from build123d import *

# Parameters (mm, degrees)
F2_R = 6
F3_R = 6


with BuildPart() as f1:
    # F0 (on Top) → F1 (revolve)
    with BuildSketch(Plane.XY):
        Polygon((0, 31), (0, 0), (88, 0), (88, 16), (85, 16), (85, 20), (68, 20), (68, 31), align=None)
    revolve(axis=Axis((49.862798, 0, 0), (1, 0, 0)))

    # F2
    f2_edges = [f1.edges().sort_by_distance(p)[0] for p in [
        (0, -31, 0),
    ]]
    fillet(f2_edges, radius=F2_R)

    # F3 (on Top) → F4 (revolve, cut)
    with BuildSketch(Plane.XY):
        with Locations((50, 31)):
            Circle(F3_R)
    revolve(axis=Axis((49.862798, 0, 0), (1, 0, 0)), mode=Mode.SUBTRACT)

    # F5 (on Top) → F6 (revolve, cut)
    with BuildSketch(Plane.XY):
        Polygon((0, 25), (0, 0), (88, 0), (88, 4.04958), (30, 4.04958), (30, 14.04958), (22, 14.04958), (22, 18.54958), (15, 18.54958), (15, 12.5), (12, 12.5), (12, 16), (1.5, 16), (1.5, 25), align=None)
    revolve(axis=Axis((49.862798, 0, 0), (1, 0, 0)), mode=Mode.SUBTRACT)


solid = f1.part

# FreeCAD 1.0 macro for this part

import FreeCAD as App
import Part
import Sketcher


def edges_at(feature, points):
    """Names of the edges that pass closest to the given points."""
    edges = feature.Shape.Edges
    near = lambda p: min(range(len(edges)), key=lambda i: edges[i].distToShape(Part.Vertex(*p))[0])
    return sorted({f"Edge{near(p) + 1}" for p in points})


def add_polygon(sketch, points):
    """Adds a closed chain of lines whose ends are joined by coincident constraints."""
    first, n = sketch.GeometryCount, len(points)
    for a, b in zip(points, points[1:] + points[:1]):
        sketch.addGeometry(Part.LineSegment(App.Vector(*a, 0), App.Vector(*b, 0)), False)
    for i in range(n):
        sketch.addConstraint(Sketcher.Constraint("Coincident", first + i, 2, first + (i + 1) % n, 1))

doc = App.newDocument("Part")
body = doc.addObject("PartDesign::Body", "Body")

# Sketch on XY plane
sketch1 = body.newObject("Sketcher::SketchObject", "Sketch")
sketch1.AttachmentSupport = (doc.getObject("XY_Plane"), [""])
sketch1.MapMode = "FlatFace"
add_polygon(sketch1, [(0, 31), (0, 0), (88, 0), (88, 16), (85, 16), (85, 20), (68, 20), (68, 31)])  # lines 0-7
sketch1.addConstraint(Sketcher.Constraint("Vertical", 0))
sketch1.addConstraint(Sketcher.Constraint("Horizontal", 1))
sketch1.addConstraint(Sketcher.Constraint("Vertical", 2))
sketch1.addConstraint(Sketcher.Constraint("Horizontal", 3))
sketch1.addConstraint(Sketcher.Constraint("Vertical", 4))
sketch1.addConstraint(Sketcher.Constraint("Horizontal", 5))
sketch1.addConstraint(Sketcher.Constraint("Vertical", 6))
sketch1.addConstraint(Sketcher.Constraint("Horizontal", 7))
sketch1.addConstraint(Sketcher.Constraint("Coincident", 0, 2, -1, 1))
sketch1.addConstraint(Sketcher.Constraint("DistanceX", 1, 1, 1, 2, 88.0))
sketch1.addConstraint(Sketcher.Constraint("DistanceX", 3, 2, 3, 1, 3.0))
sketch1.addConstraint(Sketcher.Constraint("DistanceX", 5, 2, 5, 1, 17.0))
sketch1.addConstraint(Sketcher.Constraint("DistanceY", 0, 2, 0, 1, 31.0))
sketch1.addConstraint(Sketcher.Constraint("DistanceY", 2, 1, 2, 2, 16.0))
sketch1.addConstraint(Sketcher.Constraint("DistanceY", 4, 1, 4, 2, 4.0))
revolution = body.newObject("PartDesign::Revolution", "Revolution")
revolution.Profile = sketch1
revolution.ReferenceAxis = (sketch1, ["H_Axis"])
revolution.Angle = 360
doc.recompute()

fillet = body.newObject("PartDesign::Fillet", "Fillet")
fillet.Base = (revolution, edges_at(revolution, [(0, -31, 0)]))
fillet.Radius = 6

# Sketch on XY plane
sketch2 = body.newObject("Sketcher::SketchObject", "Sketch001")
sketch2.AttachmentSupport = (doc.getObject("XY_Plane"), [""])
sketch2.MapMode = "FlatFace"
sketch2.addGeometry(Part.Circle(App.Vector(50, 31, 0), App.Vector(0, 0, 1), 6), False)
sketch2.addConstraint(Sketcher.Constraint("Diameter", 0, 12.0))
sketch2.addConstraint(Sketcher.Constraint("DistanceX", -1, 1, 0, 3, 50.0))
sketch2.addConstraint(Sketcher.Constraint("DistanceY", -1, 1, 0, 3, 31.0))
groove = body.newObject("PartDesign::Groove", "Groove")
groove.Profile = sketch2
groove.ReferenceAxis = (sketch2, ["H_Axis"])
groove.Angle = 360

# Sketch on XY plane
sketch3 = body.newObject("Sketcher::SketchObject", "Sketch002")
sketch3.AttachmentSupport = (doc.getObject("XY_Plane"), [""])
sketch3.MapMode = "FlatFace"
add_polygon(sketch3, [(0, 25), (0, 0), (88, 0), (88, 4), (30, 4), (30, 14), (22, 14), (22, 18.5), (15, 18.5), (15, 12.5), (12, 12.5), (12, 16), (1.5, 16), (1.5, 25)])  # lines 0-13
sketch3.addConstraint(Sketcher.Constraint("Vertical", 0))
sketch3.addConstraint(Sketcher.Constraint("Horizontal", 1))
sketch3.addConstraint(Sketcher.Constraint("Vertical", 2))
sketch3.addConstraint(Sketcher.Constraint("Horizontal", 3))
sketch3.addConstraint(Sketcher.Constraint("Vertical", 4))
sketch3.addConstraint(Sketcher.Constraint("Horizontal", 5))
sketch3.addConstraint(Sketcher.Constraint("Vertical", 6))
sketch3.addConstraint(Sketcher.Constraint("Horizontal", 7))
sketch3.addConstraint(Sketcher.Constraint("Vertical", 8))
sketch3.addConstraint(Sketcher.Constraint("Horizontal", 9))
sketch3.addConstraint(Sketcher.Constraint("Vertical", 10))
sketch3.addConstraint(Sketcher.Constraint("Horizontal", 11))
sketch3.addConstraint(Sketcher.Constraint("Vertical", 12))
sketch3.addConstraint(Sketcher.Constraint("Horizontal", 13))
sketch3.addConstraint(Sketcher.Constraint("Coincident", 0, 2, -1, 1))
sketch3.addConstraint(Sketcher.Constraint("DistanceX", 1, 1, 1, 2, 88.0))
sketch3.addConstraint(Sketcher.Constraint("DistanceX", 3, 2, 3, 1, 58.0))
sketch3.addConstraint(Sketcher.Constraint("DistanceX", 5, 2, 5, 1, 8.0))
sketch3.addConstraint(Sketcher.Constraint("DistanceX", 7, 2, 7, 1, 7.0))
sketch3.addConstraint(Sketcher.Constraint("DistanceX", 9, 2, 9, 1, 3.0))
sketch3.addConstraint(Sketcher.Constraint("DistanceY", 0, 2, 0, 1, 25.0))
sketch3.addConstraint(Sketcher.Constraint("DistanceY", 4, 1, 4, 2, 10.0))
sketch3.addConstraint(Sketcher.Constraint("DistanceY", 12, 1, 12, 2, 9.0))
sketch3.addConstraint(Sketcher.Constraint("DistanceX", 11, 2, 11, 1, 10.5))
sketch3.addConstraint(Sketcher.Constraint("DistanceY", 6, 1, 6, 2, 4.5))
sketch3.addConstraint(Sketcher.Constraint("DistanceY", 10, 1, 10, 2, 3.5))
sketch3.addConstraint(Sketcher.Constraint("DistanceY", 2, 1, 2, 2, 4.04958))
groove2 = body.newObject("PartDesign::Groove", "Groove001")
groove2.Profile = sketch3
groove2.ReferenceAxis = (sketch3, ["H_Axis"])
groove2.Angle = 360

doc.recompute()
